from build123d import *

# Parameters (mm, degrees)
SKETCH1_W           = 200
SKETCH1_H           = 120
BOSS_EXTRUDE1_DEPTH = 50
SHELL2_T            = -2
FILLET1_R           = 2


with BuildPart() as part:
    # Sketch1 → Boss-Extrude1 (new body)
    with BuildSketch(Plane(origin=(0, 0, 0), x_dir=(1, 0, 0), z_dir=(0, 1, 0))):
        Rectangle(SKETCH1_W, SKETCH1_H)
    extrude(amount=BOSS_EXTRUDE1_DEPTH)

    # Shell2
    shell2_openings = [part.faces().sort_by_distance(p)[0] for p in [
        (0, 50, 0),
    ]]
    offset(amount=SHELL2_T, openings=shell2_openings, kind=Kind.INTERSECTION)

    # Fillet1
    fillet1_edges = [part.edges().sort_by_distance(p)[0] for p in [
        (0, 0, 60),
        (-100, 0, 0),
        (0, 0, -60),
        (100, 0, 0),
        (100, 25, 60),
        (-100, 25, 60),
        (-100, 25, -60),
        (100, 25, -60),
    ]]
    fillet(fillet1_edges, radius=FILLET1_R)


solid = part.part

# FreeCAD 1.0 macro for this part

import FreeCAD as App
import Part
import Sketcher
from FreeCAD import Vector


def edges_at(feature, points):
    """Names of the edges that pass closest to the given points."""
    edges = feature.Shape.Edges
    near = lambda p: min(range(len(edges)), key=lambda i: edges[i].distToShape(Part.Vertex(*p))[0])
    return sorted({f"Edge{near(p) + 1}" for p in points})


def faces_at(feature, points):
    """Names of the faces that lie closest to the given points."""
    faces = feature.Shape.Faces
    near = lambda p: min(range(len(faces)), key=lambda i: faces[i].distToShape(Part.Vertex(*p))[0])
    return sorted({f"Face{near(p) + 1}" for p in points})


def add_polygon(sketch, points):
    """Adds a closed chain of lines whose ends are joined by coincident constraints."""
    first, n = sketch.GeometryCount, len(points)
    for a, b in zip(points, points[1:] + points[:1]):
        sketch.addGeometry(Part.LineSegment(App.Vector(*a, 0), App.Vector(*b, 0)), False)
    for i in range(n):
        sketch.addConstraint(Sketcher.Constraint("Coincident", first + i, 2, first + (i + 1) % n, 1))

doc = App.newDocument("Part")
body = doc.addObject("PartDesign::Body", "Body")

sketch1 = body.newObject("Sketcher::SketchObject", "Sketch")
sketch1.AttachmentSupport = (doc.getObject("XZ_Plane"), [""])
sketch1.MapMode = "FlatFace"
add_polygon(sketch1, [(-100, -60), (-100, 60), (100, 60), (100, -60)])
sketch1.addConstraint([
    Sketcher.Constraint("Vertical", 0),
    Sketcher.Constraint("Horizontal", 1),
    Sketcher.Constraint("Vertical", 2),
    Sketcher.Constraint("Horizontal", 3),
    Sketcher.Constraint("Symmetric", 0, 2, 2, 2, -1, 1),
    Sketcher.Constraint("DistanceX", 1, 1, 1, 2, 200.0),
    Sketcher.Constraint("DistanceY", 0, 1, 0, 2, 120.0),
])
pad1 = body.newObject("PartDesign::Pad", "Pad")
pad1.Profile = sketch1
pad1.Length = 50
pad1.Reversed = True
doc.recompute()

thickness = body.newObject("PartDesign::Thickness", "Thickness")
thickness.Base = (pad1, faces_at(pad1, [(0, 50, 0)]))
thickness.Value = 2
thickness.Reversed = True
thickness.Join = "Intersection"
doc.recompute()

fillet = body.newObject("PartDesign::Fillet", "Fillet")
fillet.Base = (thickness, edges_at(thickness, [
    (0, 0, 60),
    (-100, 0, 0),
    (0, 0, -60),
    (100, 0, 0),
    (100, 25, 60),
    (-100, 25, 60),
    (-100, 25, -60),
    (100, 25, -60),
]))
fillet.Radius = 2

doc.recompute()
